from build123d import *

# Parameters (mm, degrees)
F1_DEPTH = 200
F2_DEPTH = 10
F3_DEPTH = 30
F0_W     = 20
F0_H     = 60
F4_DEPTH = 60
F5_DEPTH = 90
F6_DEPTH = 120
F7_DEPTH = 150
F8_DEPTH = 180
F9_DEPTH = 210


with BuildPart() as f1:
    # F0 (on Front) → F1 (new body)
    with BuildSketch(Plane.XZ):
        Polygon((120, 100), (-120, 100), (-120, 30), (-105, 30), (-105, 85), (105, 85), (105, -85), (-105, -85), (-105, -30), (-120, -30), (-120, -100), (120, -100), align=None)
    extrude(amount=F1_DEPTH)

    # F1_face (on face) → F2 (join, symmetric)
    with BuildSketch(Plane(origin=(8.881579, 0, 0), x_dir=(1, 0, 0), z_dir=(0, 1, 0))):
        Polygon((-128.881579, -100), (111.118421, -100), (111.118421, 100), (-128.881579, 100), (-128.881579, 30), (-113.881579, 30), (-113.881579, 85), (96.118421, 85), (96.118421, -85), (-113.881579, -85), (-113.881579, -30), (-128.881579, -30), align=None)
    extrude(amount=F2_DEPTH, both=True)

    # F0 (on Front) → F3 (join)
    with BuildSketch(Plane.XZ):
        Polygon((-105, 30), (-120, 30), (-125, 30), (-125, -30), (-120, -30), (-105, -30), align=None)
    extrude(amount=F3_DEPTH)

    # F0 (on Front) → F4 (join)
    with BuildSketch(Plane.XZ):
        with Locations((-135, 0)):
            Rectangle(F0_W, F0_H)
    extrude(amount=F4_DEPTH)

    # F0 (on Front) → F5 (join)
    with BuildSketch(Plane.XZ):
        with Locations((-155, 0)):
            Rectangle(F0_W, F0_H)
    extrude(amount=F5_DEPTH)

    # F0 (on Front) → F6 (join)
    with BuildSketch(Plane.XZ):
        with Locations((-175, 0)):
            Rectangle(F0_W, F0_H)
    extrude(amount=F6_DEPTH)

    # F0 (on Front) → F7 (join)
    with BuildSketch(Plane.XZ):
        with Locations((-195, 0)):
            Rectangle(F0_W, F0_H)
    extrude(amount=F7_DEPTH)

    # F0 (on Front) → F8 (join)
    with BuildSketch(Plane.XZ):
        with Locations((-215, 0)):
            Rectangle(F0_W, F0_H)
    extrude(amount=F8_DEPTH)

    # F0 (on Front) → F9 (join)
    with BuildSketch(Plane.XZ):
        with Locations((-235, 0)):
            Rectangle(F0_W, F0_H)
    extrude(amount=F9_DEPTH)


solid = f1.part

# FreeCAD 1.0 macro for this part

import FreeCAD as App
import Part
import Sketcher

doc = App.newDocument("Part")
params = doc.addObject("Spreadsheet::Sheet", "Params")
for row, (alias, value) in enumerate([
    ("sketch1_width", "240 mm"),
    ("sketch1_width2", "15 mm"),
    ("sketch1_height", "70 mm"),
    ("sketch1_height2", "55 mm"),
    ("sketch1_height3", "170 mm"),
    ("pad1_length", "200 mm"),
    ("sketch2_width", "240 mm"),
    ("sketch2_width2", "15 mm"),
    ("sketch2_height", "200 mm"),
    ("sketch2_height2", "70 mm"),
    ("sketch2_height3", "55 mm"),
    ("pad2_length", "20 mm"),
    ("sketch3_width", "20 mm"),
    ("sketch3_height", "60 mm"),
    ("pad3_length", "30 mm"),
    ("sketch4_width", "20 mm"),
    ("sketch4_height", "60 mm"),
    ("pad4_length", "60 mm"),
    ("sketch5_width", "20 mm"),
    ("sketch5_height", "60 mm"),
    ("pad5_length", "90 mm"),
    ("sketch6_width", "20 mm"),
    ("sketch6_height", "60 mm"),
    ("pad6_length", "120 mm"),
    ("sketch7_width", "20 mm"),
    ("sketch7_height", "60 mm"),
    ("pad7_length", "150 mm"),
    ("sketch8_width", "20 mm"),
    ("sketch8_height", "60 mm"),
    ("pad8_length", "180 mm"),
    ("sketch9_width", "20 mm"),
    ("sketch9_height", "60 mm"),
    ("pad9_length", "210 mm"),
], start=1):
    params.set(f"A{row}", alias)
    params.set(f"B{row}", "=" + value)
    params.setAlias(f"B{row}", alias)

body = doc.addObject("PartDesign::Body", "Body")

# Sketch on XZ plane
sketch1 = body.newObject("Sketcher::SketchObject", "Sketch")
sketch1.AttachmentSupport = (doc.getObject("XZ_Plane"), [""])
sketch1.MapMode = "FlatFace"
sketch1.addGeometry(Part.LineSegment(App.Vector(120, 100, 0), App.Vector(-120, 100, 0)), False)
sketch1.addGeometry(Part.LineSegment(App.Vector(-120, 100, 0), App.Vector(-120, 30, 0)), False)
sketch1.addGeometry(Part.LineSegment(App.Vector(-120, 30, 0), App.Vector(-105, 30, 0)), False)
sketch1.addGeometry(Part.LineSegment(App.Vector(-105, 30, 0), App.Vector(-105, 85, 0)), False)
sketch1.addGeometry(Part.LineSegment(App.Vector(-105, 85, 0), App.Vector(105, 85, 0)), False)
sketch1.addGeometry(Part.LineSegment(App.Vector(105, 85, 0), App.Vector(105, -85, 0)), False)
sketch1.addGeometry(Part.LineSegment(App.Vector(105, -85, 0), App.Vector(-105, -85, 0)), False)
sketch1.addGeometry(Part.LineSegment(App.Vector(-105, -85, 0), App.Vector(-105, -30, 0)), False)
sketch1.addGeometry(Part.LineSegment(App.Vector(-105, -30, 0), App.Vector(-120, -30, 0)), False)
sketch1.addGeometry(Part.LineSegment(App.Vector(-120, -30, 0), App.Vector(-120, -100, 0)), False)
sketch1.addGeometry(Part.LineSegment(App.Vector(-120, -100, 0), App.Vector(120, -100, 0)), False)
sketch1.addGeometry(Part.LineSegment(App.Vector(120, -100, 0), App.Vector(120, 100, 0)), False)
sketch1.addConstraint(Sketcher.Constraint("Coincident", 0, 2, 1, 1))
sketch1.addConstraint(Sketcher.Constraint("Coincident", 1, 2, 2, 1))
sketch1.addConstraint(Sketcher.Constraint("Coincident", 2, 2, 3, 1))
sketch1.addConstraint(Sketcher.Constraint("Coincident", 3, 2, 4, 1))
sketch1.addConstraint(Sketcher.Constraint("Coincident", 4, 2, 5, 1))
sketch1.addConstraint(Sketcher.Constraint("Coincident", 5, 2, 6, 1))
sketch1.addConstraint(Sketcher.Constraint("Coincident", 6, 2, 7, 1))
sketch1.addConstraint(Sketcher.Constraint("Coincident", 7, 2, 8, 1))
sketch1.addConstraint(Sketcher.Constraint("Coincident", 8, 2, 9, 1))
sketch1.addConstraint(Sketcher.Constraint("Coincident", 9, 2, 10, 1))
sketch1.addConstraint(Sketcher.Constraint("Coincident", 10, 2, 11, 1))
sketch1.addConstraint(Sketcher.Constraint("Coincident", 11, 2, 0, 1))
sketch1.addConstraint(Sketcher.Constraint("Horizontal", 0))
sketch1.addConstraint(Sketcher.Constraint("Vertical", 1))
sketch1.addConstraint(Sketcher.Constraint("Horizontal", 2))
sketch1.addConstraint(Sketcher.Constraint("Vertical", 3))
sketch1.addConstraint(Sketcher.Constraint("Horizontal", 4))
sketch1.addConstraint(Sketcher.Constraint("Vertical", 5))
sketch1.addConstraint(Sketcher.Constraint("Horizontal", 6))
sketch1.addConstraint(Sketcher.Constraint("Vertical", 7))
sketch1.addConstraint(Sketcher.Constraint("Horizontal", 8))
sketch1.addConstraint(Sketcher.Constraint("Vertical", 9))
sketch1.addConstraint(Sketcher.Constraint("Horizontal", 10))
sketch1.addConstraint(Sketcher.Constraint("Vertical", 11))
sketch1.addConstraint(Sketcher.Constraint("Symmetric", 3, 2, 5, 2, -1, 1))
sketch1.addConstraint(Sketcher.Constraint("Symmetric", 0, 2, 10, 2, -1, 1))
sketch1.addConstraint(Sketcher.Constraint("Symmetric", 2, 2, 7, 2, -1))
sketch1.addConstraint(Sketcher.Constraint("Vertical", 1, 2, 8, 2))
sketch1.addConstraint(Sketcher.Constraint("DistanceX", 0, 2, 0, 1, 240.0))
sketch1.addConstraint(Sketcher.Constraint("DistanceX", 2, 1, 2, 2, 15.0))
sketch1.addConstraint(Sketcher.Constraint("DistanceY", 1, 2, 1, 1, 70.0))
sketch1.addConstraint(Sketcher.Constraint("DistanceY", 3, 1, 3, 2, 55.0))
sketch1.addConstraint(Sketcher.Constraint("DistanceY", 5, 2, 5, 1, 170.0))
sketch1.setExpression("Constraints[28]", "Params.sketch1_width")
sketch1.setExpression("Constraints[29]", "Params.sketch1_width2")
sketch1.setExpression("Constraints[30]", "Params.sketch1_height")
sketch1.setExpression("Constraints[31]", "Params.sketch1_height2")
sketch1.setExpression("Constraints[32]", "Params.sketch1_height3")
pad1 = body.newObject("PartDesign::Pad", "Pad")
pad1.Profile = sketch1
pad1.setExpression("Length", "Params.pad1_length")

# Sketch on XZ plane
sketch2 = body.newObject("Sketcher::SketchObject", "Sketch001")
sketch2.AttachmentSupport = (doc.getObject("XZ_Plane"), [""])
sketch2.MapMode = "FlatFace"
sketch2.addGeometry(Part.LineSegment(App.Vector(-120, 100, 0), App.Vector(120, 100, 0)), False)
sketch2.addGeometry(Part.LineSegment(App.Vector(120, 100, 0), App.Vector(120, -100, 0)), False)
sketch2.addGeometry(Part.LineSegment(App.Vector(120, -100, 0), App.Vector(-120, -100, 0)), False)
sketch2.addGeometry(Part.LineSegment(App.Vector(-120, -100, 0), App.Vector(-120, -30, 0)), False)
sketch2.addGeometry(Part.LineSegment(App.Vector(-120, -30, 0), App.Vector(-105, -30, 0)), False)
sketch2.addGeometry(Part.LineSegment(App.Vector(-105, -30, 0), App.Vector(-105, -85, 0)), False)
sketch2.addGeometry(Part.LineSegment(App.Vector(-105, -85, 0), App.Vector(105, -85, 0)), False)
sketch2.addGeometry(Part.LineSegment(App.Vector(105, -85, 0), App.Vector(105, 85, 0)), False)
sketch2.addGeometry(Part.LineSegment(App.Vector(105, 85, 0), App.Vector(-105, 85, 0)), False)
sketch2.addGeometry(Part.LineSegment(App.Vector(-105, 85, 0), App.Vector(-105, 30, 0)), False)
sketch2.addGeometry(Part.LineSegment(App.Vector(-105, 30, 0), App.Vector(-120, 30, 0)), False)
sketch2.addGeometry(Part.LineSegment(App.Vector(-120, 30, 0), App.Vector(-120, 100, 0)), False)
sketch2.addConstraint(Sketcher.Constraint("Coincident", 0, 2, 1, 1))
sketch2.addConstraint(Sketcher.Constraint("Coincident", 1, 2, 2, 1))
sketch2.addConstraint(Sketcher.Constraint("Coincident", 2, 2, 3, 1))
sketch2.addConstraint(Sketcher.Constraint("Coincident", 3, 2, 4, 1))
sketch2.addConstraint(Sketcher.Constraint("Coincident", 4, 2, 5, 1))
sketch2.addConstraint(Sketcher.Constraint("Coincident", 5, 2, 6, 1))
sketch2.addConstraint(Sketcher.Constraint("Coincident", 6, 2, 7, 1))
sketch2.addConstraint(Sketcher.Constraint("Coincident", 7, 2, 8, 1))
sketch2.addConstraint(Sketcher.Constraint("Coincident", 8, 2, 9, 1))
sketch2.addConstraint(Sketcher.Constraint("Coincident", 9, 2, 10, 1))
sketch2.addConstraint(Sketcher.Constraint("Coincident", 10, 2, 11, 1))
sketch2.addConstraint(Sketcher.Constraint("Coincident", 11, 2, 0, 1))
sketch2.addConstraint(Sketcher.Constraint("Horizontal", 0))
sketch2.addConstraint(Sketcher.Constraint("Vertical", 1))
sketch2.addConstraint(Sketcher.Constraint("Horizontal", 2))
sketch2.addConstraint(Sketcher.Constraint("Vertical", 3))
sketch2.addConstraint(Sketcher.Constraint("Horizontal", 4))
sketch2.addConstraint(Sketcher.Constraint("Vertical", 5))
sketch2.addConstraint(Sketcher.Constraint("Horizontal", 6))
sketch2.addConstraint(Sketcher.Constraint("Vertical", 7))
sketch2.addConstraint(Sketcher.Constraint("Horizontal", 8))
sketch2.addConstraint(Sketcher.Constraint("Vertical", 9))
sketch2.addConstraint(Sketcher.Constraint("Horizontal", 10))
sketch2.addConstraint(Sketcher.Constraint("Vertical", 11))
sketch2.addConstraint(Sketcher.Constraint("Symmetric", 0, 2, 2, 2, -1, 1))
sketch2.addConstraint(Sketcher.Constraint("Symmetric", 5, 2, 7, 2, -1, 1))
sketch2.addConstraint(Sketcher.Constraint("Symmetric", 4, 2, 9, 2, -1))
sketch2.addConstraint(Sketcher.Constraint("Vertical", 3, 2, 10, 2))
sketch2.addConstraint(Sketcher.Constraint("DistanceX", 0, 1, 0, 2, 240.0))
sketch2.addConstraint(Sketcher.Constraint("DistanceX", 4, 1, 4, 2, 15.0))
sketch2.addConstraint(Sketcher.Constraint("DistanceY", 1, 2, 1, 1, 200.0))
sketch2.addConstraint(Sketcher.Constraint("DistanceY", 3, 1, 3, 2, 70.0))
sketch2.addConstraint(Sketcher.Constraint("DistanceY", 5, 2, 5, 1, 55.0))
sketch2.setExpression("Constraints[28]", "Params.sketch2_width")
sketch2.setExpression("Constraints[29]", "Params.sketch2_width2")
sketch2.setExpression("Constraints[30]", "Params.sketch2_height")
sketch2.setExpression("Constraints[31]", "Params.sketch2_height2")
sketch2.setExpression("Constraints[32]", "Params.sketch2_height3")
pad2 = body.newObject("PartDesign::Pad", "Pad001")
pad2.Profile = sketch2
pad2.setExpression("Length", "Params.pad2_length")
pad2.Midplane = True

# Sketch on XZ plane
sketch3 = body.newObject("Sketcher::SketchObject", "Sketch002")
sketch3.AttachmentSupport = (doc.getObject("XZ_Plane"), [""])
sketch3.MapMode = "FlatFace"
sketch3.addGeometry(Part.LineSegment(App.Vector(-105, 30, 0), App.Vector(-125, 30, 0)), False)
sketch3.addGeometry(Part.LineSegment(App.Vector(-125, 30, 0), App.Vector(-125, -30, 0)), False)
sketch3.addGeometry(Part.LineSegment(App.Vector(-125, -30, 0), App.Vector(-105, -30, 0)), False)
sketch3.addGeometry(Part.LineSegment(App.Vector(-105, -30, 0), App.Vector(-105, 30, 0)), False)
sketch3.addConstraint(Sketcher.Constraint("Coincident", 0, 2, 1, 1))
sketch3.addConstraint(Sketcher.Constraint("Coincident", 1, 2, 2, 1))
sketch3.addConstraint(Sketcher.Constraint("Coincident", 2, 2, 3, 1))
sketch3.addConstraint(Sketcher.Constraint("Coincident", 3, 2, 0, 1))
sketch3.addConstraint(Sketcher.Constraint("Horizontal", 0))
sketch3.addConstraint(Sketcher.Constraint("Vertical", 1))
sketch3.addConstraint(Sketcher.Constraint("Horizontal", 2))
sketch3.addConstraint(Sketcher.Constraint("Vertical", 3))
sketch3.addConstraint(Sketcher.Constraint("DistanceX", 0, 2, 0, 1, 20.0))
sketch3.addConstraint(Sketcher.Constraint("DistanceY", 1, 2, 1, 1, 60.0))
sketch3.addConstraint(Sketcher.Constraint("DistanceX", 0, 2, -1, 1, 125.0))
sketch3.addConstraint(Sketcher.Constraint("DistanceY", -1, 1, 0, 2, 30.0))
sketch3.setExpression("Constraints[8]", "Params.sketch3_width")
sketch3.setExpression("Constraints[9]", "Params.sketch3_height")
pad3 = body.newObject("PartDesign::Pad", "Pad002")
pad3.Profile = sketch3
pad3.setExpression("Length", "Params.pad3_length")

# Sketch on XZ plane
sketch4 = body.newObject("Sketcher::SketchObject", "Sketch003")
sketch4.AttachmentSupport = (doc.getObject("XZ_Plane"), [""])
sketch4.MapMode = "FlatFace"
sketch4.addGeometry(Part.LineSegment(App.Vector(-145, 30, 0), App.Vector(-145, -30, 0)), False)
sketch4.addGeometry(Part.LineSegment(App.Vector(-145, -30, 0), App.Vector(-125, -30, 0)), False)
sketch4.addGeometry(Part.LineSegment(App.Vector(-125, -30, 0), App.Vector(-125, 30, 0)), False)
sketch4.addGeometry(Part.LineSegment(App.Vector(-125, 30, 0), App.Vector(-145, 30, 0)), False)
sketch4.addConstraint(Sketcher.Constraint("Coincident", 0, 2, 1, 1))
sketch4.addConstraint(Sketcher.Constraint("Coincident", 1, 2, 2, 1))
sketch4.addConstraint(Sketcher.Constraint("Coincident", 2, 2, 3, 1))
sketch4.addConstraint(Sketcher.Constraint("Coincident", 3, 2, 0, 1))
sketch4.addConstraint(Sketcher.Constraint("Vertical", 0))
sketch4.addConstraint(Sketcher.Constraint("Horizontal", 1))
sketch4.addConstraint(Sketcher.Constraint("Vertical", 2))
sketch4.addConstraint(Sketcher.Constraint("Horizontal", 3))
sketch4.addConstraint(Sketcher.Constraint("DistanceX", 1, 1, 1, 2, 20.0))
sketch4.addConstraint(Sketcher.Constraint("DistanceY", 0, 2, 0, 1, 60.0))
sketch4.addConstraint(Sketcher.Constraint("DistanceX", 0, 2, -1, 1, 145.0))
sketch4.addConstraint(Sketcher.Constraint("DistanceY", 0, 2, -1, 1, 30.0))
sketch4.setExpression("Constraints[8]", "Params.sketch4_width")
sketch4.setExpression("Constraints[9]", "Params.sketch4_height")
pad4 = body.newObject("PartDesign::Pad", "Pad003")
pad4.Profile = sketch4
pad4.setExpression("Length", "Params.pad4_length")

# Sketch on XZ plane
sketch5 = body.newObject("Sketcher::SketchObject", "Sketch004")
sketch5.AttachmentSupport = (doc.getObject("XZ_Plane"), [""])
sketch5.MapMode = "FlatFace"
sketch5.addGeometry(Part.LineSegment(App.Vector(-165, 30, 0), App.Vector(-165, -30, 0)), False)
sketch5.addGeometry(Part.LineSegment(App.Vector(-165, -30, 0), App.Vector(-145, -30, 0)), False)
sketch5.addGeometry(Part.LineSegment(App.Vector(-145, -30, 0), App.Vector(-145, 30, 0)), False)
sketch5.addGeometry(Part.LineSegment(App.Vector(-145, 30, 0), App.Vector(-165, 30, 0)), False)
sketch5.addConstraint(Sketcher.Constraint("Coincident", 0, 2, 1, 1))
sketch5.addConstraint(Sketcher.Constraint("Coincident", 1, 2, 2, 1))
sketch5.addConstraint(Sketcher.Constraint("Coincident", 2, 2, 3, 1))
sketch5.addConstraint(Sketcher.Constraint("Coincident", 3, 2, 0, 1))
sketch5.addConstraint(Sketcher.Constraint("Vertical", 0))
sketch5.addConstraint(Sketcher.Constraint("Horizontal", 1))
sketch5.addConstraint(Sketcher.Constraint("Vertical", 2))
sketch5.addConstraint(Sketcher.Constraint("Horizontal", 3))
sketch5.addConstraint(Sketcher.Constraint("DistanceX", 1, 1, 1, 2, 20.0))
sketch5.addConstraint(Sketcher.Constraint("DistanceY", 0, 2, 0, 1, 60.0))
sketch5.addConstraint(Sketcher.Constraint("DistanceX", 0, 2, -1, 1, 165.0))
sketch5.addConstraint(Sketcher.Constraint("DistanceY", 0, 2, -1, 1, 30.0))
sketch5.setExpression("Constraints[8]", "Params.sketch5_width")
sketch5.setExpression("Constraints[9]", "Params.sketch5_height")
pad5 = body.newObject("PartDesign::Pad", "Pad004")
pad5.Profile = sketch5
pad5.setExpression("Length", "Params.pad5_length")

# Sketch on XZ plane
sketch6 = body.newObject("Sketcher::SketchObject", "Sketch005")
sketch6.AttachmentSupport = (doc.getObject("XZ_Plane"), [""])
sketch6.MapMode = "FlatFace"
sketch6.addGeometry(Part.LineSegment(App.Vector(-185, 30, 0), App.Vector(-185, -30, 0)), False)
sketch6.addGeometry(Part.LineSegment(App.Vector(-185, -30, 0), App.Vector(-165, -30, 0)), False)
sketch6.addGeometry(Part.LineSegment(App.Vector(-165, -30, 0), App.Vector(-165, 30, 0)), False)
sketch6.addGeometry(Part.LineSegment(App.Vector(-165, 30, 0), App.Vector(-185, 30, 0)), False)
sketch6.addConstraint(Sketcher.Constraint("Coincident", 0, 2, 1, 1))
sketch6.addConstraint(Sketcher.Constraint("Coincident", 1, 2, 2, 1))
sketch6.addConstraint(Sketcher.Constraint("Coincident", 2, 2, 3, 1))
sketch6.addConstraint(Sketcher.Constraint("Coincident", 3, 2, 0, 1))
sketch6.addConstraint(Sketcher.Constraint("Vertical", 0))
sketch6.addConstraint(Sketcher.Constraint("Horizontal", 1))
sketch6.addConstraint(Sketcher.Constraint("Vertical", 2))
sketch6.addConstraint(Sketcher.Constraint("Horizontal", 3))
sketch6.addConstraint(Sketcher.Constraint("DistanceX", 1, 1, 1, 2, 20.0))
sketch6.addConstraint(Sketcher.Constraint("DistanceY", 0, 2, 0, 1, 60.0))
sketch6.addConstraint(Sketcher.Constraint("DistanceX", 0, 2, -1, 1, 185.0))
sketch6.addConstraint(Sketcher.Constraint("DistanceY", 0, 2, -1, 1, 30.0))
sketch6.setExpression("Constraints[8]", "Params.sketch6_width")
sketch6.setExpression("Constraints[9]", "Params.sketch6_height")
pad6 = body.newObject("PartDesign::Pad", "Pad005")
pad6.Profile = sketch6
pad6.setExpression("Length", "Params.pad6_length")

# Sketch on XZ plane
sketch7 = body.newObject("Sketcher::SketchObject", "Sketch006")
sketch7.AttachmentSupport = (doc.getObject("XZ_Plane"), [""])
sketch7.MapMode = "FlatFace"
sketch7.addGeometry(Part.LineSegment(App.Vector(-205, 30, 0), App.Vector(-205, -30, 0)), False)
sketch7.addGeometry(Part.LineSegment(App.Vector(-205, -30, 0), App.Vector(-185, -30, 0)), False)
sketch7.addGeometry(Part.LineSegment(App.Vector(-185, -30, 0), App.Vector(-185, 30, 0)), False)
sketch7.addGeometry(Part.LineSegment(App.Vector(-185, 30, 0), App.Vector(-205, 30, 0)), False)
sketch7.addConstraint(Sketcher.Constraint("Coincident", 0, 2, 1, 1))
sketch7.addConstraint(Sketcher.Constraint("Coincident", 1, 2, 2, 1))
sketch7.addConstraint(Sketcher.Constraint("Coincident", 2, 2, 3, 1))
sketch7.addConstraint(Sketcher.Constraint("Coincident", 3, 2, 0, 1))
sketch7.addConstraint(Sketcher.Constraint("Vertical", 0))
sketch7.addConstraint(Sketcher.Constraint("Horizontal", 1))
sketch7.addConstraint(Sketcher.Constraint("Vertical", 2))
sketch7.addConstraint(Sketcher.Constraint("Horizontal", 3))
sketch7.addConstraint(Sketcher.Constraint("DistanceX", 1, 1, 1, 2, 20.0))
sketch7.addConstraint(Sketcher.Constraint("DistanceY", 0, 2, 0, 1, 60.0))
sketch7.addConstraint(Sketcher.Constraint("DistanceX", 0, 2, -1, 1, 205.0))
sketch7.addConstraint(Sketcher.Constraint("DistanceY", 0, 2, -1, 1, 30.0))
sketch7.setExpression("Constraints[8]", "Params.sketch7_width")
sketch7.setExpression("Constraints[9]", "Params.sketch7_height")
pad7 = body.newObject("PartDesign::Pad", "Pad006")
pad7.Profile = sketch7
pad7.setExpression("Length", "Params.pad7_length")

# Sketch on XZ plane
sketch8 = body.newObject("Sketcher::SketchObject", "Sketch007")
sketch8.AttachmentSupport = (doc.getObject("XZ_Plane"), [""])
sketch8.MapMode = "FlatFace"
sketch8.addGeometry(Part.LineSegment(App.Vector(-225, 30, 0), App.Vector(-225, -30, 0)), False)
sketch8.addGeometry(Part.LineSegment(App.Vector(-225, -30, 0), App.Vector(-205, -30, 0)), False)
sketch8.addGeometry(Part.LineSegment(App.Vector(-205, -30, 0), App.Vector(-205, 30, 0)), False)
sketch8.addGeometry(Part.LineSegment(App.Vector(-205, 30, 0), App.Vector(-225, 30, 0)), False)
sketch8.addConstraint(Sketcher.Constraint("Coincident", 0, 2, 1, 1))
sketch8.addConstraint(Sketcher.Constraint("Coincident", 1, 2, 2, 1))
sketch8.addConstraint(Sketcher.Constraint("Coincident", 2, 2, 3, 1))
sketch8.addConstraint(Sketcher.Constraint("Coincident", 3, 2, 0, 1))
sketch8.addConstraint(Sketcher.Constraint("Vertical", 0))
sketch8.addConstraint(Sketcher.Constraint("Horizontal", 1))
sketch8.addConstraint(Sketcher.Constraint("Vertical", 2))
sketch8.addConstraint(Sketcher.Constraint("Horizontal", 3))
sketch8.addConstraint(Sketcher.Constraint("DistanceX", 1, 1, 1, 2, 20.0))
sketch8.addConstraint(Sketcher.Constraint("DistanceY", 0, 2, 0, 1, 60.0))
sketch8.addConstraint(Sketcher.Constraint("DistanceX", 0, 2, -1, 1, 225.0))
sketch8.addConstraint(Sketcher.Constraint("DistanceY", 0, 2, -1, 1, 30.0))
sketch8.setExpression("Constraints[8]", "Params.sketch8_width")
sketch8.setExpression("Constraints[9]", "Params.sketch8_height")
pad8 = body.newObject("PartDesign::Pad", "Pad007")
pad8.Profile = sketch8
pad8.setExpression("Length", "Params.pad8_length")

# Sketch on XZ plane
sketch9 = body.newObject("Sketcher::SketchObject", "Sketch008")
sketch9.AttachmentSupport = (doc.getObject("XZ_Plane"), [""])
sketch9.MapMode = "FlatFace"
sketch9.addGeometry(Part.LineSegment(App.Vector(-245, 30, 0), App.Vector(-245, -30, 0)), False)
sketch9.addGeometry(Part.LineSegment(App.Vector(-245, -30, 0), App.Vector(-225, -30, 0)), False)
sketch9.addGeometry(Part.LineSegment(App.Vector(-225, -30, 0), App.Vector(-225, 30, 0)), False)
sketch9.addGeometry(Part.LineSegment(App.Vector(-225, 30, 0), App.Vector(-245, 30, 0)), False)
sketch9.addConstraint(Sketcher.Constraint("Coincident", 0, 2, 1, 1))
sketch9.addConstraint(Sketcher.Constraint("Coincident", 1, 2, 2, 1))
sketch9.addConstraint(Sketcher.Constraint("Coincident", 2, 2, 3, 1))
sketch9.addConstraint(Sketcher.Constraint("Coincident", 3, 2, 0, 1))
sketch9.addConstraint(Sketcher.Constraint("Vertical", 0))
sketch9.addConstraint(Sketcher.Constraint("Horizontal", 1))
sketch9.addConstraint(Sketcher.Constraint("Vertical", 2))
sketch9.addConstraint(Sketcher.Constraint("Horizontal", 3))
sketch9.addConstraint(Sketcher.Constraint("DistanceX", 1, 1, 1, 2, 20.0))
sketch9.addConstraint(Sketcher.Constraint("DistanceY", 0, 2, 0, 1, 60.0))
sketch9.addConstraint(Sketcher.Constraint("DistanceX", 0, 2, -1, 1, 245.0))
sketch9.addConstraint(Sketcher.Constraint("DistanceY", 0, 2, -1, 1, 30.0))
sketch9.setExpression("Constraints[8]", "Params.sketch9_width")
sketch9.setExpression("Constraints[9]", "Params.sketch9_height")
pad9 = body.newObject("PartDesign::Pad", "Pad008")
pad9.Profile = sketch9
pad9.setExpression("Length", "Params.pad9_length")

doc.recompute()
